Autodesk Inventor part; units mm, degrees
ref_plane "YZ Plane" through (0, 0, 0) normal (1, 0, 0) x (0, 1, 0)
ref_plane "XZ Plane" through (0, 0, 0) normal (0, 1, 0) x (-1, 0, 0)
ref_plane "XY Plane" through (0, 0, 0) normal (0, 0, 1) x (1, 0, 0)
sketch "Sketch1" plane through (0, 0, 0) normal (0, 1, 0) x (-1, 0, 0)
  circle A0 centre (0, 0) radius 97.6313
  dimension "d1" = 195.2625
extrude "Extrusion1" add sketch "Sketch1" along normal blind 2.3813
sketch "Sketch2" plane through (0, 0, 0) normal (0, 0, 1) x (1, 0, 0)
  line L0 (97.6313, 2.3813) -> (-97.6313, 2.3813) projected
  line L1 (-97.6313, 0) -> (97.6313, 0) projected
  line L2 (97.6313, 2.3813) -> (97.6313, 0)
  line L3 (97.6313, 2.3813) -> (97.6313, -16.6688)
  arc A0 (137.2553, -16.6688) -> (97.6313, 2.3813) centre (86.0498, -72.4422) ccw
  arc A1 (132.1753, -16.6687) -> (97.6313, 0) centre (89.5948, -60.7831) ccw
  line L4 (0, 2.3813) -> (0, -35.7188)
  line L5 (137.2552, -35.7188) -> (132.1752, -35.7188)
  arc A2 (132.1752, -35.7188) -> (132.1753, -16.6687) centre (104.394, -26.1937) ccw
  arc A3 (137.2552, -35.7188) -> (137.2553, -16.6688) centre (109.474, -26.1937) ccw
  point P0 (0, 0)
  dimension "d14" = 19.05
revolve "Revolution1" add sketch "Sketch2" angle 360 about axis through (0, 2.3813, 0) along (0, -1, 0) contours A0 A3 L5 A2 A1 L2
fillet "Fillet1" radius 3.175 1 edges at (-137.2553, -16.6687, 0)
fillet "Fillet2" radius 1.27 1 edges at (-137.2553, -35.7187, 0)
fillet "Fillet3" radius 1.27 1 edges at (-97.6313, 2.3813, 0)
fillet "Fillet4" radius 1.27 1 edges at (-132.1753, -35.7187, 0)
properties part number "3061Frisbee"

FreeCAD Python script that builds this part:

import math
import FreeCAD as App
import Part
import Sketcher
Q = App.Units.Quantity


def edges_at(feature, points):
    """Names of the edges that pass closest to the given points."""
    edges = feature.Shape.Edges
    near = lambda p: min(range(len(edges)), key=lambda i: edges[i].distToShape(Part.Vertex(*p))[0])
    return sorted({f"Edge{near(p) + 1}" for p in points})

doc = App.newDocument("Part")
params = doc.addObject("Spreadsheet::Sheet", "Params")
for row, (alias, value) in enumerate([
    ("sketch1_diameter", "7.6875 in"),
    ("pad1_length", "0.093752 in"),
    ("sketch2_width", "0.2 in"),
    ("sketch2_radius", "1.156248 in"),
    ("sketch2_height", "0.093752 in"),
    ("revolution_angle", "360 deg"),
    ("fillet_radius", "0.125 in"),
    ("fillet2_radius", "0.05 in"),
    ("fillet3_radius", "0.05 in"),
    ("fillet4_radius", "0.05 in"),
], start=1):
    params.set(f"A{row}", alias)
    params.set(f"B{row}", "=" + value)
    params.setAlias(f"B{row}", alias)

body = doc.addObject("PartDesign::Body", "Body")

sketch1 = body.newObject("Sketcher::SketchObject", "Sketch")
sketch1.AttachmentSupport = (doc.getObject("XZ_Plane"), [""])
sketch1.MapMode = "FlatFace"
sketch1.addGeometry(Part.Circle(App.Vector(0, 0, 0), App.Vector(0, 0, 1), 98), False)
sketch1.addConstraint(Sketcher.Constraint("Coincident", 0, 3, -1, 1))
sketch1.addConstraint(Sketcher.Constraint("Diameter", 0, Q("7.6875 in")))
sketch1.setExpression("Constraints[1]", "Params.sketch1_diameter")
pad1 = body.newObject("PartDesign::Pad", "Pad")
pad1.Profile = sketch1
pad1.setExpression("Length", "Params.pad1_length")
pad1.Reversed = True

sketch2 = body.newObject("Sketcher::SketchObject", "Sketch001")
sketch2.AttachmentSupport = (doc.getObject("XY_Plane"), [""])
sketch2.MapMode = "FlatFace"
sketch2.addGeometry(Part.ArcOfCircle(Part.Circle(App.Vector(86, -72.4, 0), App.Vector(0, 0, 1), 75.7), math.radians(47), math.radians(81)), False)
sketch2.addGeometry(Part.LineSegment(App.Vector(97.6, 2.4, 0), App.Vector(97.6, 0, 0)), False)
sketch2.addGeometry(Part.ArcOfCircle(Part.Circle(App.Vector(89.6, -60.8, 0), App.Vector(0, 0, 1), 61.3), math.radians(46), math.radians(82)), False)
sketch2.addGeometry(Part.ArcOfCircle(Part.Circle(App.Vector(104.4, -26.2, 0), App.Vector(0, 0, 1), 29.4), math.radians(-19), math.radians(19)), False)
sketch2.addGeometry(Part.LineSegment(App.Vector(132.2, -35.7, 0), App.Vector(137.3, -35.7, 0)), False)
sketch2.addGeometry(Part.ArcOfCircle(Part.Circle(App.Vector(109.5, -26.2, 0), App.Vector(0, 0, 1), 29.4), math.radians(-19), math.radians(19)), False)
sketch2.addConstraint(Sketcher.Constraint("Coincident", 0, 2, 1, 1))
sketch2.addConstraint(Sketcher.Constraint("Coincident", 1, 2, 2, 2))
sketch2.addConstraint(Sketcher.Constraint("Coincident", 2, 1, 3, 2))
sketch2.addConstraint(Sketcher.Constraint("Coincident", 3, 1, 4, 1))
sketch2.addConstraint(Sketcher.Constraint("Coincident", 4, 2, 5, 1))
sketch2.addConstraint(Sketcher.Constraint("Coincident", 5, 2, 0, 1))
sketch2.addConstraint(Sketcher.Constraint("Vertical", 1))
sketch2.addConstraint(Sketcher.Constraint("Horizontal", 4))
sketch2.addConstraint(Sketcher.Constraint("Equal", 3, 5))
sketch2.addConstraint(Sketcher.Constraint("PointOnObject", 1, 2, -1))
sketch2.addConstraint(Sketcher.Constraint("Horizontal", 3, 3, 5, 3))
sketch2.addConstraint(Sketcher.Constraint("Horizontal", 2, 1, 5, 2))
sketch2.addConstraint(Sketcher.Constraint("Vertical", 2, 1, 3, 1))
sketch2.addConstraint(Sketcher.Constraint("DistanceY", 2, 1, 0, 2, Q("0.75 in")))
sketch2.addConstraint(Sketcher.Constraint("DistanceY", 3, 1, 2, 1, Q("0.75 in")))
sketch2.addConstraint(Sketcher.Constraint("DistanceX", 4, 1, 4, 2, Q("0.2 in")))
sketch2.addConstraint(Sketcher.Constraint("Radius", 3, Q("1.156248 in")))
sketch2.addConstraint(Sketcher.Constraint("DistanceY", 1, 2, 1, 1, Q("0.093752 in")))
sketch2.addConstraint(Sketcher.Constraint("DistanceX", -1, 1, 3, 3, Q("4.11 in")))
sketch2.addConstraint(Sketcher.Constraint("Radius", 0, 75.7144))
sketch2.addConstraint(Sketcher.Constraint("Radius", 2, 61.3121))
sketch2.addConstraint(Sketcher.Constraint("DistanceX", 1, 2, 2, 1, Q("1.36 in")))
sketch2.setExpression("Constraints[15]", "Params.sketch2_width")
sketch2.setExpression("Constraints[16]", "Params.sketch2_radius")
sketch2.setExpression("Constraints[17]", "Params.sketch2_height")
revolution = body.newObject("PartDesign::Revolution", "Revolution")
revolution.Profile = sketch2
revolution.ReferenceAxis = (sketch2, ["V_Axis"])
revolution.setExpression("Angle", "Params.revolution_angle")
doc.recompute()

fillet = body.newObject("PartDesign::Fillet", "Fillet")
fillet.Base = (revolution, edges_at(revolution, [(-137.255, -16.669, 0)]))
fillet.setExpression("Radius", "Params.fillet_radius")
doc.recompute()

fillet2 = body.newObject("PartDesign::Fillet", "Fillet001")
fillet2.Base = (fillet, edges_at(fillet, [(-137.255, -35.719, 0)]))
fillet2.setExpression("Radius", "Params.fillet2_radius")
doc.recompute()

fillet3 = body.newObject("PartDesign::Fillet", "Fillet002")
fillet3.Base = (fillet2, edges_at(fillet2, [(-97.631, 2.381, 0)]))
fillet3.setExpression("Radius", "Params.fillet3_radius")
doc.recompute()

fillet4 = body.newObject("PartDesign::Fillet", "Fillet003")
fillet4.Base = (fillet3, edges_at(fillet3, [(-132.175, -35.719, 0)]))
fillet4.setExpression("Radius", "Params.fillet4_radius")

doc.recompute()
